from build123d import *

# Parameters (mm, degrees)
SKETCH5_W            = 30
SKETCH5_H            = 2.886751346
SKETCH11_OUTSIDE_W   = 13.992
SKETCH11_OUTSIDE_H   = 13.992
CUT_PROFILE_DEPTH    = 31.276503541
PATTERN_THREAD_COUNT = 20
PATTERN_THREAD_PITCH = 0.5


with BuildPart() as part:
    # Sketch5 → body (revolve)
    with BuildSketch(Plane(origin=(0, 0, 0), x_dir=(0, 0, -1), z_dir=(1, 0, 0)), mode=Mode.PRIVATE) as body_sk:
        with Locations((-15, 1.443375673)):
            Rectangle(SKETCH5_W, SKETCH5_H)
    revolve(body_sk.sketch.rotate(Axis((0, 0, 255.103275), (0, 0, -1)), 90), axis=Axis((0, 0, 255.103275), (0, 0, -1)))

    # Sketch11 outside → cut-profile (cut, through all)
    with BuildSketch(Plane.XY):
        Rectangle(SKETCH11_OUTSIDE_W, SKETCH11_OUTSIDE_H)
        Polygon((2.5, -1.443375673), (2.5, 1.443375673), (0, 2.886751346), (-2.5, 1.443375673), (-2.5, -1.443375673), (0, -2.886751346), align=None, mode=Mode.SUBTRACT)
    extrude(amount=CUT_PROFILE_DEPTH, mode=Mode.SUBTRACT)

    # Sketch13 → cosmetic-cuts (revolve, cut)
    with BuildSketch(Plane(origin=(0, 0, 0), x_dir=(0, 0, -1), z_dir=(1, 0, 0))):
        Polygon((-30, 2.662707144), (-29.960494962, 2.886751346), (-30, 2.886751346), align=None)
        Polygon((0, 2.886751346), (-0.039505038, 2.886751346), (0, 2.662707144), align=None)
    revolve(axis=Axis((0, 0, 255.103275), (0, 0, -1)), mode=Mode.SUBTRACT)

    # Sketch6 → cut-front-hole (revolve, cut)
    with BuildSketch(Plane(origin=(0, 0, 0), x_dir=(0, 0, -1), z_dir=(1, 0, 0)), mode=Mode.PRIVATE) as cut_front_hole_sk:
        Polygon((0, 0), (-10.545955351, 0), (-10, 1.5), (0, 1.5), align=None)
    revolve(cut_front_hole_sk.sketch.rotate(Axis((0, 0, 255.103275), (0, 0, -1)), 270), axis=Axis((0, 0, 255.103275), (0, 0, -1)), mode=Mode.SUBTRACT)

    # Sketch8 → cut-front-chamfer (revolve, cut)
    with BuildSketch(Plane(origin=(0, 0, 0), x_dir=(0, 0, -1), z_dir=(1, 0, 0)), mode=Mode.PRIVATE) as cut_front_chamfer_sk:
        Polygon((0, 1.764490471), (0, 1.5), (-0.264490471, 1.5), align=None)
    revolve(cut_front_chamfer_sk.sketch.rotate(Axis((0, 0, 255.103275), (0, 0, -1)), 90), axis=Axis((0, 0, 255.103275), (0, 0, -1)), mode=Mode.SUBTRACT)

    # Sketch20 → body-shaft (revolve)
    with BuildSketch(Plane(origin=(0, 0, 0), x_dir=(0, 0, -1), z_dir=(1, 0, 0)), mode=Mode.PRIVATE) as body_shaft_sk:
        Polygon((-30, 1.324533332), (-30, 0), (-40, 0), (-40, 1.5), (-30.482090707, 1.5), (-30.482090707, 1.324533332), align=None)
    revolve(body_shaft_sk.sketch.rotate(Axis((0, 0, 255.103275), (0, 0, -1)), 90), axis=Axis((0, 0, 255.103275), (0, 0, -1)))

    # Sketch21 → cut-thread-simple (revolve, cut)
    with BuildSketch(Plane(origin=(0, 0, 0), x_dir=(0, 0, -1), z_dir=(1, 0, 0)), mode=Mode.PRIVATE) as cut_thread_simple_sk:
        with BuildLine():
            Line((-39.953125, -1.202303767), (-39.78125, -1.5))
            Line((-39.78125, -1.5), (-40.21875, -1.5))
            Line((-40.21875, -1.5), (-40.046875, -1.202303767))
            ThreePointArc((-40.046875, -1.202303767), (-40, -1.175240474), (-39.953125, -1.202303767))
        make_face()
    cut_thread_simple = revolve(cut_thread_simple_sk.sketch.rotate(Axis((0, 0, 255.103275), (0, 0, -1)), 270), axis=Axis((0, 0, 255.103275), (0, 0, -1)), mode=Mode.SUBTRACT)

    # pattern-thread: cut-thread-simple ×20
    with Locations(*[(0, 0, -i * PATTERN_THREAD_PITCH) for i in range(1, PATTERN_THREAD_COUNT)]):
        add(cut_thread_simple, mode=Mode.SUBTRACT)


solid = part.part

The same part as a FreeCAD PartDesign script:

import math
import FreeCAD as App
import Part
import Sketcher

V = App.Vector
Q = App.Units.Quantity


def add_polygon(sketch, points):
    """Adds a closed chain of lines whose ends are joined by coincident constraints."""
    first, n = sketch.GeometryCount, len(points)
    for a, b in zip(points, points[1:] + points[:1]):
        sketch.addGeometry(Part.LineSegment(App.Vector(*a, 0), App.Vector(*b, 0)), False)
    for i in range(n):
        sketch.addConstraint(Sketcher.Constraint("Coincident", first + i, 2, first + (i + 1) % n, 1))

doc = App.newDocument("Part")
params = doc.addObject("Spreadsheet::Sheet", "Params")
for row, (alias, value) in enumerate([
    ("sketch1_height", "30 mm"),
    ("revolution_angle", "360 deg"),
    ("groove_angle", "360 deg"),
    ("sketch4_height", "10 mm"),
    ("sketch4_width", "1.5 mm"),
    ("groove2_angle", "360 deg"),
    ("groove3_angle", "360 deg"),
    ("sketch6_height", "10 mm"),
    ("sketch6_width", "1.5 mm"),
    ("revolution2_angle", "360 deg"),
    ("groove4_angle", "360 deg"),
    ("linearpattern_pitch", "0.5 mm"),
], start=1):
    params.set(f"A{row}", alias)
    params.set(f"B{row}", "=" + value)
    params.setAlias(f"B{row}", alias)

body = doc.addObject("PartDesign::Body", "Body")

# Sketch on YZ plane
sketch1 = body.newObject("Sketcher::SketchObject", "Sketch")
sketch1.AttachmentSupport = (doc.getObject("YZ_Plane"), [""])
sketch1.MapMode = "FlatFace"
add_polygon(sketch1, [(2.9, 30), (0, 30), (0, 0), (2.9, 0)])  # lines 0-3
sketch1.addConstraint([
    Sketcher.Constraint("Horizontal", 0),
    Sketcher.Constraint("Vertical", 1),
    Sketcher.Constraint("Horizontal", 2),
    Sketcher.Constraint("Vertical", 3),
    Sketcher.Constraint("Coincident", 1, 2, -1, 1),
    Sketcher.Constraint("DistanceY", 1, 2, 1, 1, Q("30 mm")),
    Sketcher.Constraint("DistanceX", 0, 2, 0, 1, Q("2.886751 mm")),
])
sketch1.setExpression("Constraints[9]", "Params.sketch1_height")
revolution = body.newObject("PartDesign::Revolution", "Revolution")
revolution.Profile = sketch1
revolution.ReferenceAxis = (sketch1, ["V_Axis"])
revolution.setExpression("Angle", "Params.revolution_angle")

# Sketch on XY plane
sketch2 = body.newObject("Sketcher::SketchObject", "Sketch001")
sketch2.AttachmentSupport = (doc.getObject("XY_Plane"), [""])
sketch2.MapMode = "FlatFace"
add_polygon(sketch2, [(-7, 7), (-7, -7), (7, -7), (7, 7)])  # lines 0-3
add_polygon(sketch2, [(2.5, 1.4), (2.5, -1.4), (0, -2.9), (-2.5, -1.4), (-2.5, 1.4), (0, 2.9)])  # lines 4-9
sketch2.addConstraint([
    Sketcher.Constraint("Vertical", 0),
    Sketcher.Constraint("Horizontal", 1),
    Sketcher.Constraint("Vertical", 2),
    Sketcher.Constraint("Horizontal", 3),
    Sketcher.Constraint("Vertical", 4),
    Sketcher.Constraint("Vertical", 7),
    Sketcher.Constraint("Symmetric", 0, 2, 2, 2, -1, 1),
    Sketcher.Constraint("Symmetric", 4, 2, 7, 2, -1, 1),
    Sketcher.Constraint("Symmetric", 5, 2, 8, 2, -1, 1),
    Sketcher.Constraint("PointOnObject", 5, 2, -2),
    Sketcher.Constraint("Parallel", 6, 9),
    Sketcher.Constraint("Horizontal", 4, 2, 6, 2),
    Sketcher.Constraint("Equal", 3, 0),
    Sketcher.Constraint("Angle", 5, Q("-150 deg")),
    Sketcher.Constraint("DistanceX", 6, 2, 4, 2, Q("5 mm")),
    Sketcher.Constraint("DistanceX", 1, 1, 1, 2, Q("13.992 mm")),
    Sketcher.Constraint("DistanceY", 4, 2, 4, 1, Q("2.886751 mm")),
])
pocket1 = body.newObject("PartDesign::Pocket", "Pocket")
pocket1.Profile = sketch2
pocket1.Type = "ThroughAll"
pocket1.Reversed = True

# Sketch on YZ plane
sketch3 = body.newObject("Sketcher::SketchObject", "Sketch002")
sketch3.AttachmentSupport = (doc.getObject("YZ_Plane"), [""])
sketch3.MapMode = "FlatFace"
add_polygon(sketch3, [(2.663, 30), (2.887, 29.96), (2.887, 30)])  # lines 0-2
add_polygon(sketch3, [(2.887, 0), (2.887, 0.04), (2.663, 0)])  # lines 3-5
sketch3.addConstraint([
    Sketcher.Constraint("Vertical", 1),
    Sketcher.Constraint("Horizontal", 2),
    Sketcher.Constraint("Vertical", 3),
    Sketcher.Constraint("Horizontal", 5),
    Sketcher.Constraint("PointOnObject", 4, 2, -1),
    Sketcher.Constraint("Vertical", 1, 2, 3, 2),
    Sketcher.Constraint("Vertical", 2, 2, 4, 2),
    Sketcher.Constraint("Equal", 1, 3),
    Sketcher.Constraint("Angle", 0, Q("-10 deg")),
    Sketcher.Constraint("DistanceY", -1, 1, 1, 2, Q("30 mm")),
    Sketcher.Constraint("Distance", 0, Q("0.2275 mm")),
    Sketcher.Constraint("DistanceX", -1, 1, 0, 2, Q("2.886751 mm")),
])
groove = body.newObject("PartDesign::Groove", "Groove")
groove.Profile = sketch3
groove.ReferenceAxis = (sketch3, ["V_Axis"])
groove.setExpression("Angle", "Params.groove_angle")

# Sketch on YZ plane
sketch4 = body.newObject("Sketcher::SketchObject", "Sketch003")
sketch4.AttachmentSupport = (doc.getObject("YZ_Plane"), [""])
sketch4.MapMode = "FlatFace"
add_polygon(sketch4, [(0, 10.5), (0, 0), (1.5, 0), (1.5, 10)])  # lines 0-3
sketch4.addConstraint([
    Sketcher.Constraint("Vertical", 0),
    Sketcher.Constraint("Horizontal", 1),
    Sketcher.Constraint("Vertical", 2),
    Sketcher.Constraint("Coincident", 0, 2, -1, 1),
    Sketcher.Constraint("DistanceY", 2, 1, 2, 2, Q("10 mm")),
    Sketcher.Constraint("Angle", 3, Q("160 deg")),
    Sketcher.Constraint("DistanceX", 1, 1, 1, 2, Q("1.5 mm")),
])
sketch4.setExpression("Constraints[8]", "Params.sketch4_height")
sketch4.setExpression("Constraints[10]", "Params.sketch4_width")
groove2 = body.newObject("PartDesign::Groove", "Groove001")
groove2.Profile = sketch4
groove2.ReferenceAxis = (sketch4, ["V_Axis"])
groove2.setExpression("Angle", "Params.groove2_angle")

# Sketch on YZ plane
sketch5 = body.newObject("Sketcher::SketchObject", "Sketch004")
sketch5.AttachmentSupport = (doc.getObject("YZ_Plane"), [""])
sketch5.MapMode = "FlatFace"
add_polygon(sketch5, [(1.5, 0), (1.76, 0), (1.5, 0.26)])  # lines 0-2
sketch5.addConstraint([
    Sketcher.Constraint("Horizontal", 0),
    Sketcher.Constraint("Vertical", 2),
    Sketcher.Constraint("PointOnObject", 0, 2, -1),
    Sketcher.Constraint("Equal", 0, 2),
    Sketcher.Constraint("DistanceX", -1, 1, 1, 2, Q("1.5 mm")),
    Sketcher.Constraint("DistanceX", 0, 1, 0, 2, Q("0.26449 mm")),
])
groove3 = body.newObject("PartDesign::Groove", "Groove002")
groove3.Profile = sketch5
groove3.ReferenceAxis = (sketch5, ["V_Axis"])
groove3.setExpression("Angle", "Params.groove3_angle")

# Sketch on YZ plane
sketch6 = body.newObject("Sketcher::SketchObject", "Sketch005")
sketch6.AttachmentSupport = (doc.getObject("YZ_Plane"), [""])
sketch6.MapMode = "FlatFace"
add_polygon(sketch6, [(0, 30), (1.32, 30), (1.32, 30.48), (1.5, 30.48), (1.5, 40), (0, 40)])  # lines 0-5
sketch6.addConstraint([
    Sketcher.Constraint("Horizontal", 0),
    Sketcher.Constraint("Vertical", 1),
    Sketcher.Constraint("Horizontal", 2),
    Sketcher.Constraint("Vertical", 3),
    Sketcher.Constraint("Horizontal", 4),
    Sketcher.Constraint("Vertical", 5),
    Sketcher.Constraint("PointOnObject", 4, 2, -2),
    Sketcher.Constraint("DistanceY", 5, 2, 5, 1, Q("10 mm")),
    Sketcher.Constraint("DistanceX", 4, 2, 4, 1, Q("1.5 mm")),
    Sketcher.Constraint("DistanceY", -1, 1, 0, 2, Q("30 mm")),
    Sketcher.Constraint("DistanceY", 1, 1, 1, 2, Q("0.482091 mm")),
    Sketcher.Constraint("DistanceX", 0, 1, 0, 2, Q("1.324533 mm")),
])
sketch6.setExpression("Constraints[13]", "Params.sketch6_height")
sketch6.setExpression("Constraints[14]", "Params.sketch6_width")
revolution2 = body.newObject("PartDesign::Revolution", "Revolution001")
revolution2.Profile = sketch6
revolution2.ReferenceAxis = (sketch6, ["V_Axis"])
revolution2.setExpression("Angle", "Params.revolution2_angle")

# Sketch on YZ plane
sketch7 = body.newObject("Sketcher::SketchObject", "Sketch006")
sketch7.AttachmentSupport = (doc.getObject("YZ_Plane"), [""])
sketch7.MapMode = "FlatFace"
sketch7.addGeometry([
    Part.LineSegment(V(-1.5, 39.78, 0), V(-1.2, 39.95, 0)),
    Part.ArcOfCircle(Part.Circle(V(-1.23, 40, 0), V(0, 0, 1), 0.05), math.radians(-60), math.radians(60)),
    Part.LineSegment(V(-1.2, 40.05, 0), V(-1.5, 40.22, 0)),
    Part.LineSegment(V(-1.5, 40.22, 0), V(-1.5, 39.78, 0)),
], False)
sketch7.addConstraint([
    Sketcher.Constraint("Tangent", 0, 2, 1, 1),
    Sketcher.Constraint("Tangent", 1, 2, 2, 1),
    Sketcher.Constraint("Coincident", 2, 2, 3, 1),
    Sketcher.Constraint("Coincident", 3, 2, 0, 1),
    Sketcher.Constraint("Vertical", 3),
    Sketcher.Constraint("Vertical", 0, 2, 1, 2),
    Sketcher.Constraint("Angle", 0, Q("30 deg")),
    Sketcher.Constraint("DistanceY", -1, 1, 1, 3, Q("40 mm")),
    Sketcher.Constraint("DistanceX", 2, 2, -1, 1, Q("1.5 mm")),
    Sketcher.Constraint("DistanceY", 3, 2, 3, 1, Q("0.4375 mm")),
    Sketcher.Constraint("Radius", 1, Q("0.054127 mm")),
])
groove4 = body.newObject("PartDesign::Groove", "Groove003")
groove4.Profile = sketch7
groove4.ReferenceAxis = (sketch7, ["V_Axis"])
groove4.setExpression("Angle", "Params.groove4_angle")
doc.recompute()

linearpattern = body.newObject("PartDesign::LinearPattern", "LinearPattern")
linearpattern.Originals = [groove4]
linearpattern.Direction = (doc.getObject("Z_Axis"), [""])
linearpattern.Mode = "offset"
linearpattern.setExpression("Offset", "Params.linearpattern_pitch")
linearpattern.Occurrences = 20
linearpattern.Reversed = True
body.Tip = linearpattern

doc.recompute()
